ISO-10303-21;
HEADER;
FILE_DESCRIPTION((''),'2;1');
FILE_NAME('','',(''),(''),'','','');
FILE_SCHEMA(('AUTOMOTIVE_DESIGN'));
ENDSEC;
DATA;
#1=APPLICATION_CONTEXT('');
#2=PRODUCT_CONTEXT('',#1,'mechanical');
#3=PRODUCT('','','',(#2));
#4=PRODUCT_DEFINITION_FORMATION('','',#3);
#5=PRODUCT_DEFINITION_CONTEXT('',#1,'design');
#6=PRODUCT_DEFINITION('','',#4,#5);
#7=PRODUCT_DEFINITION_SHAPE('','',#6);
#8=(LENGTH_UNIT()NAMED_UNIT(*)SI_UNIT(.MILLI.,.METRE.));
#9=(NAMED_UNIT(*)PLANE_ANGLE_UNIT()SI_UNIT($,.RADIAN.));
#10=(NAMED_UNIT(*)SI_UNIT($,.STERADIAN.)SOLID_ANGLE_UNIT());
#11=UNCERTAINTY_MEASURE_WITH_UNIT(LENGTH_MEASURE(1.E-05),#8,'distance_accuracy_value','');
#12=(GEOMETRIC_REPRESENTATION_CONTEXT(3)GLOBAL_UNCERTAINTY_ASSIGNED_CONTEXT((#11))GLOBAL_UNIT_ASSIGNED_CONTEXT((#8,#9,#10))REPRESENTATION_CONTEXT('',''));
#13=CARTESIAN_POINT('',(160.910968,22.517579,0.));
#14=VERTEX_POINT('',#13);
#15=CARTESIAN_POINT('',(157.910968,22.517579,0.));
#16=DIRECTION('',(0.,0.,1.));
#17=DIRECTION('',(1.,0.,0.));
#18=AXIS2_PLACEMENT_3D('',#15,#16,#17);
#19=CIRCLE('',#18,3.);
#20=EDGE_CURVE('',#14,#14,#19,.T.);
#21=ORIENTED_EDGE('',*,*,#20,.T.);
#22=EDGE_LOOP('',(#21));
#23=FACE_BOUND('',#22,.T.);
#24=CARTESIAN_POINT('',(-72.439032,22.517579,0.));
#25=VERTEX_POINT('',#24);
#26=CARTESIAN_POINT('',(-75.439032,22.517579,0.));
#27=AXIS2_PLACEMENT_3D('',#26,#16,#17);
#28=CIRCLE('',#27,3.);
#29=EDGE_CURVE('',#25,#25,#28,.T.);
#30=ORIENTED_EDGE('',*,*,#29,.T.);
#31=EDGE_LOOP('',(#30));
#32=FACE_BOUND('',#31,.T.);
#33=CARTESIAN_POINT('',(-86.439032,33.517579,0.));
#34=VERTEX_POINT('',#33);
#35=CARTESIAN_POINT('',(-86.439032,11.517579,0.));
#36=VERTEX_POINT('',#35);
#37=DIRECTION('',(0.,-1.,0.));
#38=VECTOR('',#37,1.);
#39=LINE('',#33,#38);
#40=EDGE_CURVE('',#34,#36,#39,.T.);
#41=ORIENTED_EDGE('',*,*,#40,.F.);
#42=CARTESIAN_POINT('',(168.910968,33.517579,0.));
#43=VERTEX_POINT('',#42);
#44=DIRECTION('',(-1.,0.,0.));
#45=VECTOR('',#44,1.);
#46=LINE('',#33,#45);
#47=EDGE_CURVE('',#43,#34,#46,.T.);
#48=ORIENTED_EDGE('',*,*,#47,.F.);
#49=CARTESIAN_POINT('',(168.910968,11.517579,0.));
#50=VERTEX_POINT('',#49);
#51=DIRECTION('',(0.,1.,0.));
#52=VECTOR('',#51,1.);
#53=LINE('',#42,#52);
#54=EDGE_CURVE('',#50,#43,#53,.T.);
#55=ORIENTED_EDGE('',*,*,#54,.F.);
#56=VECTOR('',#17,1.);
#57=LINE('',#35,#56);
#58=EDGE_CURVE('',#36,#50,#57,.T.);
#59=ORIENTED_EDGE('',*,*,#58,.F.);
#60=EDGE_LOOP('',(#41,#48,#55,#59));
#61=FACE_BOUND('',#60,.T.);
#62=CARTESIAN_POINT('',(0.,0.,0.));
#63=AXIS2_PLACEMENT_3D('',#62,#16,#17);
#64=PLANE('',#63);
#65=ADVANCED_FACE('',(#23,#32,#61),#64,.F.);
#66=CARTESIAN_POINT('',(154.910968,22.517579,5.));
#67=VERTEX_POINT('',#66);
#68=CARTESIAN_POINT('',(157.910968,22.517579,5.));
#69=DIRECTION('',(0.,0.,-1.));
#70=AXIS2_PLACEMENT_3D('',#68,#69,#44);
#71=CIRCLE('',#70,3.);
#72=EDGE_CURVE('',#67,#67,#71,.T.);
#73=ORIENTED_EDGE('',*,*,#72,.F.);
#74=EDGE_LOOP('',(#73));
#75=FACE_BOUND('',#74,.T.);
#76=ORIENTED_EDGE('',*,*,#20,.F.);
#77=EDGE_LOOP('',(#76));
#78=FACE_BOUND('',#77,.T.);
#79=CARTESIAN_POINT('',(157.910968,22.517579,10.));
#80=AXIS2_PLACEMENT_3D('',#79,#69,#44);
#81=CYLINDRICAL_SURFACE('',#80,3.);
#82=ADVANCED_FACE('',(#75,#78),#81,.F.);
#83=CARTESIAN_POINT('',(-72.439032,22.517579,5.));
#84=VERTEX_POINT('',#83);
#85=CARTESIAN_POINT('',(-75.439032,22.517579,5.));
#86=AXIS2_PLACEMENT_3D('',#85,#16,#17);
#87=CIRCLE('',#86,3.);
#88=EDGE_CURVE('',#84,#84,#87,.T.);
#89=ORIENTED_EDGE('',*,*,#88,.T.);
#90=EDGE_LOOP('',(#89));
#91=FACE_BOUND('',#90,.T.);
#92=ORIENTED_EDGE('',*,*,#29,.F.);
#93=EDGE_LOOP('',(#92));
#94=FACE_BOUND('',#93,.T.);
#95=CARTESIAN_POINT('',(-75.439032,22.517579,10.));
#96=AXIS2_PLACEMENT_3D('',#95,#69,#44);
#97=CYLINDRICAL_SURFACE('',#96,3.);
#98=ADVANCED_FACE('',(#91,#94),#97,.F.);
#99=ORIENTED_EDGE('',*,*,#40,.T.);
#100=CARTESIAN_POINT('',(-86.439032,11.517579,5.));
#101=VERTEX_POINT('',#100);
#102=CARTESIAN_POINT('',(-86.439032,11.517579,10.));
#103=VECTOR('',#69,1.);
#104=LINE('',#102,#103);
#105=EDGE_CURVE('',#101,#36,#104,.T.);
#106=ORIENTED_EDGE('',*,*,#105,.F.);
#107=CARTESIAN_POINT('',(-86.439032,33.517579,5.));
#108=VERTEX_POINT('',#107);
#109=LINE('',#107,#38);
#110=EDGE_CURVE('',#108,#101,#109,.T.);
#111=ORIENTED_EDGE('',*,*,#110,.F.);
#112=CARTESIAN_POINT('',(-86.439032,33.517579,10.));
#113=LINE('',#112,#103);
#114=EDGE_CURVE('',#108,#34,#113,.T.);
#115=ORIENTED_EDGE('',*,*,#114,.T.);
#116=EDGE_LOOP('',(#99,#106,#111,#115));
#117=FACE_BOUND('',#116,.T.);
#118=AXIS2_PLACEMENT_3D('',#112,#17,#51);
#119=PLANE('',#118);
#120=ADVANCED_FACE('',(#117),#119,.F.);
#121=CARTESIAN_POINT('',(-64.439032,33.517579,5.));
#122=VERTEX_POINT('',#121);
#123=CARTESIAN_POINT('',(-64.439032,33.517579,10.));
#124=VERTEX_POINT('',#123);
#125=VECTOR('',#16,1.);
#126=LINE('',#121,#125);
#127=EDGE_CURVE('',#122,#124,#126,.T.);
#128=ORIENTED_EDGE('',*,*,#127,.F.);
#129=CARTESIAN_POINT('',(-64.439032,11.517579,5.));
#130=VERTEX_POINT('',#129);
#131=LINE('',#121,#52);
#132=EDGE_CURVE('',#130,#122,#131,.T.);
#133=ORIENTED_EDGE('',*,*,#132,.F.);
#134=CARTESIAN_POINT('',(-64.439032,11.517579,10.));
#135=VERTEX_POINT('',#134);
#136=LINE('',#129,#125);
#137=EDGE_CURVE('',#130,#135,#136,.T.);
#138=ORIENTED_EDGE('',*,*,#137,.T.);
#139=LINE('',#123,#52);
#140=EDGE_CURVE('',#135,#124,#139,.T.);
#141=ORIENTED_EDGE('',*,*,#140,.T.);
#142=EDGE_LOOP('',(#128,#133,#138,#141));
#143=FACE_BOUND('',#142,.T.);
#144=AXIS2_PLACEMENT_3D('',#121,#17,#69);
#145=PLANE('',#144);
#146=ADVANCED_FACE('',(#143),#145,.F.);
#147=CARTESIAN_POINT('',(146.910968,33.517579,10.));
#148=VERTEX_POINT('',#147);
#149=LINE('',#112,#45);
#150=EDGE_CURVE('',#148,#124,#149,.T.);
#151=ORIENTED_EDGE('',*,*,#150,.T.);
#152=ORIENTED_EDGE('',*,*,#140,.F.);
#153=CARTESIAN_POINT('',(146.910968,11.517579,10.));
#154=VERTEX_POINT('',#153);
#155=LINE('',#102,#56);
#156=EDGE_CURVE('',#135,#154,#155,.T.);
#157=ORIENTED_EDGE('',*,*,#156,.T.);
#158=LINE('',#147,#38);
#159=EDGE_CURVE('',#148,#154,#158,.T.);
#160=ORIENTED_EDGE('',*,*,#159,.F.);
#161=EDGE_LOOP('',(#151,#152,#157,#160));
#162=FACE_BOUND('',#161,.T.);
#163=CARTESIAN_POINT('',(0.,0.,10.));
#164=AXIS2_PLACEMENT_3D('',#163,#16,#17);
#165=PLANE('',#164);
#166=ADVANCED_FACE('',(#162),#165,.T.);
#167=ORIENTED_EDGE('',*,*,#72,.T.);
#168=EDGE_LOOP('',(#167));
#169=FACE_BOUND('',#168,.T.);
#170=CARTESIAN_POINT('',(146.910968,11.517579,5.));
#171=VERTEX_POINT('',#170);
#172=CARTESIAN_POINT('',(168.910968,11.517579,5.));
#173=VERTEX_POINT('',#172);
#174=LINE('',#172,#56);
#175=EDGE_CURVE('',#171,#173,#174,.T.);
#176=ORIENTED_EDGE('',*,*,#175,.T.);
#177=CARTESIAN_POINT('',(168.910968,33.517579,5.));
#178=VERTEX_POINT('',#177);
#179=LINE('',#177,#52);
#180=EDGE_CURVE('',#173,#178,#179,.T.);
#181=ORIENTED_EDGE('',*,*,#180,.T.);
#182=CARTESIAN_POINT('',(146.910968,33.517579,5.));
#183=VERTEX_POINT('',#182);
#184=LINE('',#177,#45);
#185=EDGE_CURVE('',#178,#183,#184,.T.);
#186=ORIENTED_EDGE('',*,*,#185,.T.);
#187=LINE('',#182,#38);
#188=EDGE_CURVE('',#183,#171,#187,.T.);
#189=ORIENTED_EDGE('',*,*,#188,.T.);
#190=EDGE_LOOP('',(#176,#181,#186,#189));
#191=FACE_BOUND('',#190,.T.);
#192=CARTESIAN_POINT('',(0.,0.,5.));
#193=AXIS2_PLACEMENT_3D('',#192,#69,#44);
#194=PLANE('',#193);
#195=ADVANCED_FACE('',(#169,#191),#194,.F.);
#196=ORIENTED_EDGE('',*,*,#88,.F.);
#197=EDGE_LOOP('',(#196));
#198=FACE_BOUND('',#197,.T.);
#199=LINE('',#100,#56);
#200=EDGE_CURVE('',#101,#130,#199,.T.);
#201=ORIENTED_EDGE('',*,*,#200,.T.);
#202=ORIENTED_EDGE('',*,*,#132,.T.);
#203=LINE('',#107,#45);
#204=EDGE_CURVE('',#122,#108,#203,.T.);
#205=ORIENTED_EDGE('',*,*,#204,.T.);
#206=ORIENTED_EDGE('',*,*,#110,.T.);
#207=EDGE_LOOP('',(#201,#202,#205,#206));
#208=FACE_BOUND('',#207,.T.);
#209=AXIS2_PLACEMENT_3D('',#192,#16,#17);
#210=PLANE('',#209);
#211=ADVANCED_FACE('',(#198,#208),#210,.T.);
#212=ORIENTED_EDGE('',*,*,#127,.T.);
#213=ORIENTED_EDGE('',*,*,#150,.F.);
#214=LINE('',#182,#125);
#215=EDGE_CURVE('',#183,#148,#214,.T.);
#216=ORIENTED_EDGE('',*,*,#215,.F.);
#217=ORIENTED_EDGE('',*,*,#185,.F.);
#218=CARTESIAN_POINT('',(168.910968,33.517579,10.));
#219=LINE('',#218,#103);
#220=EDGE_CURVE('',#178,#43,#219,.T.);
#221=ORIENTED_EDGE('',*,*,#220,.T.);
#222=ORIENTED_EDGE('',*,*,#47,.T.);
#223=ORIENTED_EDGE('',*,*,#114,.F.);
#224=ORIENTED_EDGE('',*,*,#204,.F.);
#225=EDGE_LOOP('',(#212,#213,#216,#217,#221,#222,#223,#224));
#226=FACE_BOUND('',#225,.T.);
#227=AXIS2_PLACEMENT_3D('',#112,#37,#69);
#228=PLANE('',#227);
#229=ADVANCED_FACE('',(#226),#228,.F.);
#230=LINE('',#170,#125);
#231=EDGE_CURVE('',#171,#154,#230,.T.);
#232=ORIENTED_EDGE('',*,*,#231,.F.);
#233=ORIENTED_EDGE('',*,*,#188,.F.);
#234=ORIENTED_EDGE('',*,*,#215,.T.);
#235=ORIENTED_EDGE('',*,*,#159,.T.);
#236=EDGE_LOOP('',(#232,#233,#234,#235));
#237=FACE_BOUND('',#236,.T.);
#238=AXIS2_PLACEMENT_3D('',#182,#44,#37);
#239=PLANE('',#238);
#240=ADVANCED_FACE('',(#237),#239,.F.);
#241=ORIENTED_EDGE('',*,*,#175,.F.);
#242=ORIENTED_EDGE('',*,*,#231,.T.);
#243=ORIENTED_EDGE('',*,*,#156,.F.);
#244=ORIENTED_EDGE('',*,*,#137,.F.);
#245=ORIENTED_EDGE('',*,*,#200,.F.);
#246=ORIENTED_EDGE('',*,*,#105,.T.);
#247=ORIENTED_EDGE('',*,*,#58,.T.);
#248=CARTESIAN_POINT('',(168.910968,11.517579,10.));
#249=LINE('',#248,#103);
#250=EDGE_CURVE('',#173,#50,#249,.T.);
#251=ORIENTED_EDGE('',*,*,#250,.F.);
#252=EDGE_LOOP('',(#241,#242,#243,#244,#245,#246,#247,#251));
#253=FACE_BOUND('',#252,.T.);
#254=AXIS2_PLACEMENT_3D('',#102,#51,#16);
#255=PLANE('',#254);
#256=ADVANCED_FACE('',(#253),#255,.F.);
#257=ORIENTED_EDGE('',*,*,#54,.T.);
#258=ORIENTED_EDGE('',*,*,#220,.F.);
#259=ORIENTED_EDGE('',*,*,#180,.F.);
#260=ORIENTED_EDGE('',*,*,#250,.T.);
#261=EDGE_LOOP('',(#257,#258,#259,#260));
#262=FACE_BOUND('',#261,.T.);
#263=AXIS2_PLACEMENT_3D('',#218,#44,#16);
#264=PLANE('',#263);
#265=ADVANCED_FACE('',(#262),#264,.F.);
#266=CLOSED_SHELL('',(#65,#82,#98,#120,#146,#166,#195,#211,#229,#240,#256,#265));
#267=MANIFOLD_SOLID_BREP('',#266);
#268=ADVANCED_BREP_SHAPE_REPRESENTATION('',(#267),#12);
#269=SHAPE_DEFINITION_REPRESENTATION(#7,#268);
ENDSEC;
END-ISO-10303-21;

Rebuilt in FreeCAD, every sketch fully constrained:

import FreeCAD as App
import Part
import Sketcher
from FreeCAD import Vector

doc = App.newDocument("Part")
body = doc.addObject("PartDesign::Body", "Body")

sketch1 = doc.addObject("Sketcher::SketchObject", "Sketch")
body.addObject(sketch1)
sketch1.AttachmentSupport = (doc.XY_Plane, [""])
sketch1.MapMode = "FlatFace"
sketch1.addGeometry([
    Part.LineSegment(Vector(-86.439032, 33.517579, 0), Vector(-86.439032, 11.517579, 0)),
    Part.LineSegment(Vector(-86.439032, 11.517579, 0), Vector(168.910968, 11.517579, 0)),
    Part.LineSegment(Vector(168.910968, 11.517579, 0), Vector(168.910968, 33.517579, 0)),
    Part.LineSegment(Vector(168.910968, 33.517579, 0), Vector(-86.439032, 33.517579, 0)),
], False)
sketch1.addConstraint([
    Sketcher.Constraint("Coincident", 0, 2, 1, 1),
    Sketcher.Constraint("Coincident", 1, 2, 2, 1),
    Sketcher.Constraint("Coincident", 2, 2, 3, 1),
    Sketcher.Constraint("Coincident", 3, 2, 0, 1),
    Sketcher.Constraint("Vertical", 0),
    Sketcher.Constraint("Horizontal", 1),
    Sketcher.Constraint("Vertical", 2),
    Sketcher.Constraint("Horizontal", 3),
    Sketcher.Constraint("DistanceY", 0, 2, 0, 1, 22.0),
    Sketcher.Constraint("DistanceX", 1, 1, 1, 2, 255.35),
    Sketcher.Constraint("DistanceX", 0, 2, -1, 1, 86.439032),
    Sketcher.Constraint("DistanceY", -1, 1, 0, 2, 11.517579),
])
pad1 = doc.addObject("PartDesign::Pad", "Pad")
body.addObject(pad1)
pad1.Profile = sketch1
pad1.Length = 10

sketch2 = doc.addObject("Sketcher::SketchObject", "Sketch001")
body.addObject(sketch2)
sketch2.AttachmentSupport = (doc.XY_Plane, [""])
sketch2.MapMode = "FlatFace"
sketch2.addGeometry([
    Part.Circle(Vector(-75.439032, 22.517579, 0), Vector(0, 0, 1), 3),
    Part.Circle(Vector(157.910968, 22.517579, 0), Vector(0, 0, 1), 3),
], False)
sketch2.addConstraint([
    Sketcher.Constraint("Equal", 0, 1),
    Sketcher.Constraint("Horizontal", 0, 3, 1, 3),
    Sketcher.Constraint("Diameter", 0, 6.0),
    Sketcher.Constraint("DistanceX", 0, 3, 1, 3, 233.35),
    Sketcher.Constraint("DistanceX", 0, 3, -1, 1, 75.439032),
    Sketcher.Constraint("DistanceY", -1, 1, 0, 3, 22.517579),
])
pocket1 = doc.addObject("PartDesign::Pocket", "Pocket")
body.addObject(pocket1)
pocket1.Profile = sketch2
pocket1.Type = "ThroughAll"
pocket1.Reversed = True

sketch3 = doc.addObject("Sketcher::SketchObject", "Sketch002")
body.addObject(sketch3)
sketch3.AttachmentSupport = (doc.XY_Plane, [""])
sketch3.MapMode = "FlatFace"
sketch3.AttachmentOffset = App.Placement(Vector(0, 0, 10), App.Rotation())
sketch3.addGeometry([
    Part.LineSegment(Vector(-86.439032, 33.517579, 0), Vector(-86.439032, 11.517579, 0)),
    Part.LineSegment(Vector(-86.439032, 11.517579, 0), Vector(-64.439032, 11.517579, 0)),
    Part.LineSegment(Vector(-64.439032, 11.517579, 0), Vector(-64.439032, 33.517579, 0)),
    Part.LineSegment(Vector(-64.439032, 33.517579, 0), Vector(-86.439032, 33.517579, 0)),
    Part.LineSegment(Vector(146.910968, 33.517579, 0), Vector(146.910968, 11.517579, 0)),
    Part.LineSegment(Vector(146.910968, 11.517579, 0), Vector(168.910968, 11.517579, 0)),
    Part.LineSegment(Vector(168.910968, 11.517579, 0), Vector(168.910968, 33.517579, 0)),
    Part.LineSegment(Vector(168.910968, 33.517579, 0), Vector(146.910968, 33.517579, 0)),
], False)
sketch3.addConstraint([
    Sketcher.Constraint("Coincident", 0, 2, 1, 1),
    Sketcher.Constraint("Coincident", 1, 2, 2, 1),
    Sketcher.Constraint("Coincident", 2, 2, 3, 1),
    Sketcher.Constraint("Coincident", 3, 2, 0, 1),
    Sketcher.Constraint("Coincident", 4, 2, 5, 1),
    Sketcher.Constraint("Coincident", 5, 2, 6, 1),
    Sketcher.Constraint("Coincident", 6, 2, 7, 1),
    Sketcher.Constraint("Coincident", 7, 2, 4, 1),
    Sketcher.Constraint("Vertical", 0),
    Sketcher.Constraint("Horizontal", 1),
    Sketcher.Constraint("Vertical", 2),
    Sketcher.Constraint("Horizontal", 3),
    Sketcher.Constraint("Vertical", 4),
    Sketcher.Constraint("Horizontal", 5),
    Sketcher.Constraint("Vertical", 6),
    Sketcher.Constraint("Horizontal", 7),
    Sketcher.Constraint("Horizontal", 1, 2, 4, 2),
    Sketcher.Constraint("Horizontal", 3, 2, 6, 2),
    Sketcher.Constraint("Equal", 3, 5),
    Sketcher.Constraint("Equal", 7, 0),
    Sketcher.Constraint("DistanceX", 1, 1, 1, 2, 22.0),
    Sketcher.Constraint("DistanceX", 1, 2, 4, 2, 211.35),
    Sketcher.Constraint("DistanceX", 0, 2, -1, 1, 86.439032),
    Sketcher.Constraint("DistanceY", -1, 1, 0, 2, 11.517579),
])
pocket2 = doc.addObject("PartDesign::Pocket", "Pocket001")
body.addObject(pocket2)
pocket2.Profile = sketch3
pocket2.Length = 5

doc.recompute()
